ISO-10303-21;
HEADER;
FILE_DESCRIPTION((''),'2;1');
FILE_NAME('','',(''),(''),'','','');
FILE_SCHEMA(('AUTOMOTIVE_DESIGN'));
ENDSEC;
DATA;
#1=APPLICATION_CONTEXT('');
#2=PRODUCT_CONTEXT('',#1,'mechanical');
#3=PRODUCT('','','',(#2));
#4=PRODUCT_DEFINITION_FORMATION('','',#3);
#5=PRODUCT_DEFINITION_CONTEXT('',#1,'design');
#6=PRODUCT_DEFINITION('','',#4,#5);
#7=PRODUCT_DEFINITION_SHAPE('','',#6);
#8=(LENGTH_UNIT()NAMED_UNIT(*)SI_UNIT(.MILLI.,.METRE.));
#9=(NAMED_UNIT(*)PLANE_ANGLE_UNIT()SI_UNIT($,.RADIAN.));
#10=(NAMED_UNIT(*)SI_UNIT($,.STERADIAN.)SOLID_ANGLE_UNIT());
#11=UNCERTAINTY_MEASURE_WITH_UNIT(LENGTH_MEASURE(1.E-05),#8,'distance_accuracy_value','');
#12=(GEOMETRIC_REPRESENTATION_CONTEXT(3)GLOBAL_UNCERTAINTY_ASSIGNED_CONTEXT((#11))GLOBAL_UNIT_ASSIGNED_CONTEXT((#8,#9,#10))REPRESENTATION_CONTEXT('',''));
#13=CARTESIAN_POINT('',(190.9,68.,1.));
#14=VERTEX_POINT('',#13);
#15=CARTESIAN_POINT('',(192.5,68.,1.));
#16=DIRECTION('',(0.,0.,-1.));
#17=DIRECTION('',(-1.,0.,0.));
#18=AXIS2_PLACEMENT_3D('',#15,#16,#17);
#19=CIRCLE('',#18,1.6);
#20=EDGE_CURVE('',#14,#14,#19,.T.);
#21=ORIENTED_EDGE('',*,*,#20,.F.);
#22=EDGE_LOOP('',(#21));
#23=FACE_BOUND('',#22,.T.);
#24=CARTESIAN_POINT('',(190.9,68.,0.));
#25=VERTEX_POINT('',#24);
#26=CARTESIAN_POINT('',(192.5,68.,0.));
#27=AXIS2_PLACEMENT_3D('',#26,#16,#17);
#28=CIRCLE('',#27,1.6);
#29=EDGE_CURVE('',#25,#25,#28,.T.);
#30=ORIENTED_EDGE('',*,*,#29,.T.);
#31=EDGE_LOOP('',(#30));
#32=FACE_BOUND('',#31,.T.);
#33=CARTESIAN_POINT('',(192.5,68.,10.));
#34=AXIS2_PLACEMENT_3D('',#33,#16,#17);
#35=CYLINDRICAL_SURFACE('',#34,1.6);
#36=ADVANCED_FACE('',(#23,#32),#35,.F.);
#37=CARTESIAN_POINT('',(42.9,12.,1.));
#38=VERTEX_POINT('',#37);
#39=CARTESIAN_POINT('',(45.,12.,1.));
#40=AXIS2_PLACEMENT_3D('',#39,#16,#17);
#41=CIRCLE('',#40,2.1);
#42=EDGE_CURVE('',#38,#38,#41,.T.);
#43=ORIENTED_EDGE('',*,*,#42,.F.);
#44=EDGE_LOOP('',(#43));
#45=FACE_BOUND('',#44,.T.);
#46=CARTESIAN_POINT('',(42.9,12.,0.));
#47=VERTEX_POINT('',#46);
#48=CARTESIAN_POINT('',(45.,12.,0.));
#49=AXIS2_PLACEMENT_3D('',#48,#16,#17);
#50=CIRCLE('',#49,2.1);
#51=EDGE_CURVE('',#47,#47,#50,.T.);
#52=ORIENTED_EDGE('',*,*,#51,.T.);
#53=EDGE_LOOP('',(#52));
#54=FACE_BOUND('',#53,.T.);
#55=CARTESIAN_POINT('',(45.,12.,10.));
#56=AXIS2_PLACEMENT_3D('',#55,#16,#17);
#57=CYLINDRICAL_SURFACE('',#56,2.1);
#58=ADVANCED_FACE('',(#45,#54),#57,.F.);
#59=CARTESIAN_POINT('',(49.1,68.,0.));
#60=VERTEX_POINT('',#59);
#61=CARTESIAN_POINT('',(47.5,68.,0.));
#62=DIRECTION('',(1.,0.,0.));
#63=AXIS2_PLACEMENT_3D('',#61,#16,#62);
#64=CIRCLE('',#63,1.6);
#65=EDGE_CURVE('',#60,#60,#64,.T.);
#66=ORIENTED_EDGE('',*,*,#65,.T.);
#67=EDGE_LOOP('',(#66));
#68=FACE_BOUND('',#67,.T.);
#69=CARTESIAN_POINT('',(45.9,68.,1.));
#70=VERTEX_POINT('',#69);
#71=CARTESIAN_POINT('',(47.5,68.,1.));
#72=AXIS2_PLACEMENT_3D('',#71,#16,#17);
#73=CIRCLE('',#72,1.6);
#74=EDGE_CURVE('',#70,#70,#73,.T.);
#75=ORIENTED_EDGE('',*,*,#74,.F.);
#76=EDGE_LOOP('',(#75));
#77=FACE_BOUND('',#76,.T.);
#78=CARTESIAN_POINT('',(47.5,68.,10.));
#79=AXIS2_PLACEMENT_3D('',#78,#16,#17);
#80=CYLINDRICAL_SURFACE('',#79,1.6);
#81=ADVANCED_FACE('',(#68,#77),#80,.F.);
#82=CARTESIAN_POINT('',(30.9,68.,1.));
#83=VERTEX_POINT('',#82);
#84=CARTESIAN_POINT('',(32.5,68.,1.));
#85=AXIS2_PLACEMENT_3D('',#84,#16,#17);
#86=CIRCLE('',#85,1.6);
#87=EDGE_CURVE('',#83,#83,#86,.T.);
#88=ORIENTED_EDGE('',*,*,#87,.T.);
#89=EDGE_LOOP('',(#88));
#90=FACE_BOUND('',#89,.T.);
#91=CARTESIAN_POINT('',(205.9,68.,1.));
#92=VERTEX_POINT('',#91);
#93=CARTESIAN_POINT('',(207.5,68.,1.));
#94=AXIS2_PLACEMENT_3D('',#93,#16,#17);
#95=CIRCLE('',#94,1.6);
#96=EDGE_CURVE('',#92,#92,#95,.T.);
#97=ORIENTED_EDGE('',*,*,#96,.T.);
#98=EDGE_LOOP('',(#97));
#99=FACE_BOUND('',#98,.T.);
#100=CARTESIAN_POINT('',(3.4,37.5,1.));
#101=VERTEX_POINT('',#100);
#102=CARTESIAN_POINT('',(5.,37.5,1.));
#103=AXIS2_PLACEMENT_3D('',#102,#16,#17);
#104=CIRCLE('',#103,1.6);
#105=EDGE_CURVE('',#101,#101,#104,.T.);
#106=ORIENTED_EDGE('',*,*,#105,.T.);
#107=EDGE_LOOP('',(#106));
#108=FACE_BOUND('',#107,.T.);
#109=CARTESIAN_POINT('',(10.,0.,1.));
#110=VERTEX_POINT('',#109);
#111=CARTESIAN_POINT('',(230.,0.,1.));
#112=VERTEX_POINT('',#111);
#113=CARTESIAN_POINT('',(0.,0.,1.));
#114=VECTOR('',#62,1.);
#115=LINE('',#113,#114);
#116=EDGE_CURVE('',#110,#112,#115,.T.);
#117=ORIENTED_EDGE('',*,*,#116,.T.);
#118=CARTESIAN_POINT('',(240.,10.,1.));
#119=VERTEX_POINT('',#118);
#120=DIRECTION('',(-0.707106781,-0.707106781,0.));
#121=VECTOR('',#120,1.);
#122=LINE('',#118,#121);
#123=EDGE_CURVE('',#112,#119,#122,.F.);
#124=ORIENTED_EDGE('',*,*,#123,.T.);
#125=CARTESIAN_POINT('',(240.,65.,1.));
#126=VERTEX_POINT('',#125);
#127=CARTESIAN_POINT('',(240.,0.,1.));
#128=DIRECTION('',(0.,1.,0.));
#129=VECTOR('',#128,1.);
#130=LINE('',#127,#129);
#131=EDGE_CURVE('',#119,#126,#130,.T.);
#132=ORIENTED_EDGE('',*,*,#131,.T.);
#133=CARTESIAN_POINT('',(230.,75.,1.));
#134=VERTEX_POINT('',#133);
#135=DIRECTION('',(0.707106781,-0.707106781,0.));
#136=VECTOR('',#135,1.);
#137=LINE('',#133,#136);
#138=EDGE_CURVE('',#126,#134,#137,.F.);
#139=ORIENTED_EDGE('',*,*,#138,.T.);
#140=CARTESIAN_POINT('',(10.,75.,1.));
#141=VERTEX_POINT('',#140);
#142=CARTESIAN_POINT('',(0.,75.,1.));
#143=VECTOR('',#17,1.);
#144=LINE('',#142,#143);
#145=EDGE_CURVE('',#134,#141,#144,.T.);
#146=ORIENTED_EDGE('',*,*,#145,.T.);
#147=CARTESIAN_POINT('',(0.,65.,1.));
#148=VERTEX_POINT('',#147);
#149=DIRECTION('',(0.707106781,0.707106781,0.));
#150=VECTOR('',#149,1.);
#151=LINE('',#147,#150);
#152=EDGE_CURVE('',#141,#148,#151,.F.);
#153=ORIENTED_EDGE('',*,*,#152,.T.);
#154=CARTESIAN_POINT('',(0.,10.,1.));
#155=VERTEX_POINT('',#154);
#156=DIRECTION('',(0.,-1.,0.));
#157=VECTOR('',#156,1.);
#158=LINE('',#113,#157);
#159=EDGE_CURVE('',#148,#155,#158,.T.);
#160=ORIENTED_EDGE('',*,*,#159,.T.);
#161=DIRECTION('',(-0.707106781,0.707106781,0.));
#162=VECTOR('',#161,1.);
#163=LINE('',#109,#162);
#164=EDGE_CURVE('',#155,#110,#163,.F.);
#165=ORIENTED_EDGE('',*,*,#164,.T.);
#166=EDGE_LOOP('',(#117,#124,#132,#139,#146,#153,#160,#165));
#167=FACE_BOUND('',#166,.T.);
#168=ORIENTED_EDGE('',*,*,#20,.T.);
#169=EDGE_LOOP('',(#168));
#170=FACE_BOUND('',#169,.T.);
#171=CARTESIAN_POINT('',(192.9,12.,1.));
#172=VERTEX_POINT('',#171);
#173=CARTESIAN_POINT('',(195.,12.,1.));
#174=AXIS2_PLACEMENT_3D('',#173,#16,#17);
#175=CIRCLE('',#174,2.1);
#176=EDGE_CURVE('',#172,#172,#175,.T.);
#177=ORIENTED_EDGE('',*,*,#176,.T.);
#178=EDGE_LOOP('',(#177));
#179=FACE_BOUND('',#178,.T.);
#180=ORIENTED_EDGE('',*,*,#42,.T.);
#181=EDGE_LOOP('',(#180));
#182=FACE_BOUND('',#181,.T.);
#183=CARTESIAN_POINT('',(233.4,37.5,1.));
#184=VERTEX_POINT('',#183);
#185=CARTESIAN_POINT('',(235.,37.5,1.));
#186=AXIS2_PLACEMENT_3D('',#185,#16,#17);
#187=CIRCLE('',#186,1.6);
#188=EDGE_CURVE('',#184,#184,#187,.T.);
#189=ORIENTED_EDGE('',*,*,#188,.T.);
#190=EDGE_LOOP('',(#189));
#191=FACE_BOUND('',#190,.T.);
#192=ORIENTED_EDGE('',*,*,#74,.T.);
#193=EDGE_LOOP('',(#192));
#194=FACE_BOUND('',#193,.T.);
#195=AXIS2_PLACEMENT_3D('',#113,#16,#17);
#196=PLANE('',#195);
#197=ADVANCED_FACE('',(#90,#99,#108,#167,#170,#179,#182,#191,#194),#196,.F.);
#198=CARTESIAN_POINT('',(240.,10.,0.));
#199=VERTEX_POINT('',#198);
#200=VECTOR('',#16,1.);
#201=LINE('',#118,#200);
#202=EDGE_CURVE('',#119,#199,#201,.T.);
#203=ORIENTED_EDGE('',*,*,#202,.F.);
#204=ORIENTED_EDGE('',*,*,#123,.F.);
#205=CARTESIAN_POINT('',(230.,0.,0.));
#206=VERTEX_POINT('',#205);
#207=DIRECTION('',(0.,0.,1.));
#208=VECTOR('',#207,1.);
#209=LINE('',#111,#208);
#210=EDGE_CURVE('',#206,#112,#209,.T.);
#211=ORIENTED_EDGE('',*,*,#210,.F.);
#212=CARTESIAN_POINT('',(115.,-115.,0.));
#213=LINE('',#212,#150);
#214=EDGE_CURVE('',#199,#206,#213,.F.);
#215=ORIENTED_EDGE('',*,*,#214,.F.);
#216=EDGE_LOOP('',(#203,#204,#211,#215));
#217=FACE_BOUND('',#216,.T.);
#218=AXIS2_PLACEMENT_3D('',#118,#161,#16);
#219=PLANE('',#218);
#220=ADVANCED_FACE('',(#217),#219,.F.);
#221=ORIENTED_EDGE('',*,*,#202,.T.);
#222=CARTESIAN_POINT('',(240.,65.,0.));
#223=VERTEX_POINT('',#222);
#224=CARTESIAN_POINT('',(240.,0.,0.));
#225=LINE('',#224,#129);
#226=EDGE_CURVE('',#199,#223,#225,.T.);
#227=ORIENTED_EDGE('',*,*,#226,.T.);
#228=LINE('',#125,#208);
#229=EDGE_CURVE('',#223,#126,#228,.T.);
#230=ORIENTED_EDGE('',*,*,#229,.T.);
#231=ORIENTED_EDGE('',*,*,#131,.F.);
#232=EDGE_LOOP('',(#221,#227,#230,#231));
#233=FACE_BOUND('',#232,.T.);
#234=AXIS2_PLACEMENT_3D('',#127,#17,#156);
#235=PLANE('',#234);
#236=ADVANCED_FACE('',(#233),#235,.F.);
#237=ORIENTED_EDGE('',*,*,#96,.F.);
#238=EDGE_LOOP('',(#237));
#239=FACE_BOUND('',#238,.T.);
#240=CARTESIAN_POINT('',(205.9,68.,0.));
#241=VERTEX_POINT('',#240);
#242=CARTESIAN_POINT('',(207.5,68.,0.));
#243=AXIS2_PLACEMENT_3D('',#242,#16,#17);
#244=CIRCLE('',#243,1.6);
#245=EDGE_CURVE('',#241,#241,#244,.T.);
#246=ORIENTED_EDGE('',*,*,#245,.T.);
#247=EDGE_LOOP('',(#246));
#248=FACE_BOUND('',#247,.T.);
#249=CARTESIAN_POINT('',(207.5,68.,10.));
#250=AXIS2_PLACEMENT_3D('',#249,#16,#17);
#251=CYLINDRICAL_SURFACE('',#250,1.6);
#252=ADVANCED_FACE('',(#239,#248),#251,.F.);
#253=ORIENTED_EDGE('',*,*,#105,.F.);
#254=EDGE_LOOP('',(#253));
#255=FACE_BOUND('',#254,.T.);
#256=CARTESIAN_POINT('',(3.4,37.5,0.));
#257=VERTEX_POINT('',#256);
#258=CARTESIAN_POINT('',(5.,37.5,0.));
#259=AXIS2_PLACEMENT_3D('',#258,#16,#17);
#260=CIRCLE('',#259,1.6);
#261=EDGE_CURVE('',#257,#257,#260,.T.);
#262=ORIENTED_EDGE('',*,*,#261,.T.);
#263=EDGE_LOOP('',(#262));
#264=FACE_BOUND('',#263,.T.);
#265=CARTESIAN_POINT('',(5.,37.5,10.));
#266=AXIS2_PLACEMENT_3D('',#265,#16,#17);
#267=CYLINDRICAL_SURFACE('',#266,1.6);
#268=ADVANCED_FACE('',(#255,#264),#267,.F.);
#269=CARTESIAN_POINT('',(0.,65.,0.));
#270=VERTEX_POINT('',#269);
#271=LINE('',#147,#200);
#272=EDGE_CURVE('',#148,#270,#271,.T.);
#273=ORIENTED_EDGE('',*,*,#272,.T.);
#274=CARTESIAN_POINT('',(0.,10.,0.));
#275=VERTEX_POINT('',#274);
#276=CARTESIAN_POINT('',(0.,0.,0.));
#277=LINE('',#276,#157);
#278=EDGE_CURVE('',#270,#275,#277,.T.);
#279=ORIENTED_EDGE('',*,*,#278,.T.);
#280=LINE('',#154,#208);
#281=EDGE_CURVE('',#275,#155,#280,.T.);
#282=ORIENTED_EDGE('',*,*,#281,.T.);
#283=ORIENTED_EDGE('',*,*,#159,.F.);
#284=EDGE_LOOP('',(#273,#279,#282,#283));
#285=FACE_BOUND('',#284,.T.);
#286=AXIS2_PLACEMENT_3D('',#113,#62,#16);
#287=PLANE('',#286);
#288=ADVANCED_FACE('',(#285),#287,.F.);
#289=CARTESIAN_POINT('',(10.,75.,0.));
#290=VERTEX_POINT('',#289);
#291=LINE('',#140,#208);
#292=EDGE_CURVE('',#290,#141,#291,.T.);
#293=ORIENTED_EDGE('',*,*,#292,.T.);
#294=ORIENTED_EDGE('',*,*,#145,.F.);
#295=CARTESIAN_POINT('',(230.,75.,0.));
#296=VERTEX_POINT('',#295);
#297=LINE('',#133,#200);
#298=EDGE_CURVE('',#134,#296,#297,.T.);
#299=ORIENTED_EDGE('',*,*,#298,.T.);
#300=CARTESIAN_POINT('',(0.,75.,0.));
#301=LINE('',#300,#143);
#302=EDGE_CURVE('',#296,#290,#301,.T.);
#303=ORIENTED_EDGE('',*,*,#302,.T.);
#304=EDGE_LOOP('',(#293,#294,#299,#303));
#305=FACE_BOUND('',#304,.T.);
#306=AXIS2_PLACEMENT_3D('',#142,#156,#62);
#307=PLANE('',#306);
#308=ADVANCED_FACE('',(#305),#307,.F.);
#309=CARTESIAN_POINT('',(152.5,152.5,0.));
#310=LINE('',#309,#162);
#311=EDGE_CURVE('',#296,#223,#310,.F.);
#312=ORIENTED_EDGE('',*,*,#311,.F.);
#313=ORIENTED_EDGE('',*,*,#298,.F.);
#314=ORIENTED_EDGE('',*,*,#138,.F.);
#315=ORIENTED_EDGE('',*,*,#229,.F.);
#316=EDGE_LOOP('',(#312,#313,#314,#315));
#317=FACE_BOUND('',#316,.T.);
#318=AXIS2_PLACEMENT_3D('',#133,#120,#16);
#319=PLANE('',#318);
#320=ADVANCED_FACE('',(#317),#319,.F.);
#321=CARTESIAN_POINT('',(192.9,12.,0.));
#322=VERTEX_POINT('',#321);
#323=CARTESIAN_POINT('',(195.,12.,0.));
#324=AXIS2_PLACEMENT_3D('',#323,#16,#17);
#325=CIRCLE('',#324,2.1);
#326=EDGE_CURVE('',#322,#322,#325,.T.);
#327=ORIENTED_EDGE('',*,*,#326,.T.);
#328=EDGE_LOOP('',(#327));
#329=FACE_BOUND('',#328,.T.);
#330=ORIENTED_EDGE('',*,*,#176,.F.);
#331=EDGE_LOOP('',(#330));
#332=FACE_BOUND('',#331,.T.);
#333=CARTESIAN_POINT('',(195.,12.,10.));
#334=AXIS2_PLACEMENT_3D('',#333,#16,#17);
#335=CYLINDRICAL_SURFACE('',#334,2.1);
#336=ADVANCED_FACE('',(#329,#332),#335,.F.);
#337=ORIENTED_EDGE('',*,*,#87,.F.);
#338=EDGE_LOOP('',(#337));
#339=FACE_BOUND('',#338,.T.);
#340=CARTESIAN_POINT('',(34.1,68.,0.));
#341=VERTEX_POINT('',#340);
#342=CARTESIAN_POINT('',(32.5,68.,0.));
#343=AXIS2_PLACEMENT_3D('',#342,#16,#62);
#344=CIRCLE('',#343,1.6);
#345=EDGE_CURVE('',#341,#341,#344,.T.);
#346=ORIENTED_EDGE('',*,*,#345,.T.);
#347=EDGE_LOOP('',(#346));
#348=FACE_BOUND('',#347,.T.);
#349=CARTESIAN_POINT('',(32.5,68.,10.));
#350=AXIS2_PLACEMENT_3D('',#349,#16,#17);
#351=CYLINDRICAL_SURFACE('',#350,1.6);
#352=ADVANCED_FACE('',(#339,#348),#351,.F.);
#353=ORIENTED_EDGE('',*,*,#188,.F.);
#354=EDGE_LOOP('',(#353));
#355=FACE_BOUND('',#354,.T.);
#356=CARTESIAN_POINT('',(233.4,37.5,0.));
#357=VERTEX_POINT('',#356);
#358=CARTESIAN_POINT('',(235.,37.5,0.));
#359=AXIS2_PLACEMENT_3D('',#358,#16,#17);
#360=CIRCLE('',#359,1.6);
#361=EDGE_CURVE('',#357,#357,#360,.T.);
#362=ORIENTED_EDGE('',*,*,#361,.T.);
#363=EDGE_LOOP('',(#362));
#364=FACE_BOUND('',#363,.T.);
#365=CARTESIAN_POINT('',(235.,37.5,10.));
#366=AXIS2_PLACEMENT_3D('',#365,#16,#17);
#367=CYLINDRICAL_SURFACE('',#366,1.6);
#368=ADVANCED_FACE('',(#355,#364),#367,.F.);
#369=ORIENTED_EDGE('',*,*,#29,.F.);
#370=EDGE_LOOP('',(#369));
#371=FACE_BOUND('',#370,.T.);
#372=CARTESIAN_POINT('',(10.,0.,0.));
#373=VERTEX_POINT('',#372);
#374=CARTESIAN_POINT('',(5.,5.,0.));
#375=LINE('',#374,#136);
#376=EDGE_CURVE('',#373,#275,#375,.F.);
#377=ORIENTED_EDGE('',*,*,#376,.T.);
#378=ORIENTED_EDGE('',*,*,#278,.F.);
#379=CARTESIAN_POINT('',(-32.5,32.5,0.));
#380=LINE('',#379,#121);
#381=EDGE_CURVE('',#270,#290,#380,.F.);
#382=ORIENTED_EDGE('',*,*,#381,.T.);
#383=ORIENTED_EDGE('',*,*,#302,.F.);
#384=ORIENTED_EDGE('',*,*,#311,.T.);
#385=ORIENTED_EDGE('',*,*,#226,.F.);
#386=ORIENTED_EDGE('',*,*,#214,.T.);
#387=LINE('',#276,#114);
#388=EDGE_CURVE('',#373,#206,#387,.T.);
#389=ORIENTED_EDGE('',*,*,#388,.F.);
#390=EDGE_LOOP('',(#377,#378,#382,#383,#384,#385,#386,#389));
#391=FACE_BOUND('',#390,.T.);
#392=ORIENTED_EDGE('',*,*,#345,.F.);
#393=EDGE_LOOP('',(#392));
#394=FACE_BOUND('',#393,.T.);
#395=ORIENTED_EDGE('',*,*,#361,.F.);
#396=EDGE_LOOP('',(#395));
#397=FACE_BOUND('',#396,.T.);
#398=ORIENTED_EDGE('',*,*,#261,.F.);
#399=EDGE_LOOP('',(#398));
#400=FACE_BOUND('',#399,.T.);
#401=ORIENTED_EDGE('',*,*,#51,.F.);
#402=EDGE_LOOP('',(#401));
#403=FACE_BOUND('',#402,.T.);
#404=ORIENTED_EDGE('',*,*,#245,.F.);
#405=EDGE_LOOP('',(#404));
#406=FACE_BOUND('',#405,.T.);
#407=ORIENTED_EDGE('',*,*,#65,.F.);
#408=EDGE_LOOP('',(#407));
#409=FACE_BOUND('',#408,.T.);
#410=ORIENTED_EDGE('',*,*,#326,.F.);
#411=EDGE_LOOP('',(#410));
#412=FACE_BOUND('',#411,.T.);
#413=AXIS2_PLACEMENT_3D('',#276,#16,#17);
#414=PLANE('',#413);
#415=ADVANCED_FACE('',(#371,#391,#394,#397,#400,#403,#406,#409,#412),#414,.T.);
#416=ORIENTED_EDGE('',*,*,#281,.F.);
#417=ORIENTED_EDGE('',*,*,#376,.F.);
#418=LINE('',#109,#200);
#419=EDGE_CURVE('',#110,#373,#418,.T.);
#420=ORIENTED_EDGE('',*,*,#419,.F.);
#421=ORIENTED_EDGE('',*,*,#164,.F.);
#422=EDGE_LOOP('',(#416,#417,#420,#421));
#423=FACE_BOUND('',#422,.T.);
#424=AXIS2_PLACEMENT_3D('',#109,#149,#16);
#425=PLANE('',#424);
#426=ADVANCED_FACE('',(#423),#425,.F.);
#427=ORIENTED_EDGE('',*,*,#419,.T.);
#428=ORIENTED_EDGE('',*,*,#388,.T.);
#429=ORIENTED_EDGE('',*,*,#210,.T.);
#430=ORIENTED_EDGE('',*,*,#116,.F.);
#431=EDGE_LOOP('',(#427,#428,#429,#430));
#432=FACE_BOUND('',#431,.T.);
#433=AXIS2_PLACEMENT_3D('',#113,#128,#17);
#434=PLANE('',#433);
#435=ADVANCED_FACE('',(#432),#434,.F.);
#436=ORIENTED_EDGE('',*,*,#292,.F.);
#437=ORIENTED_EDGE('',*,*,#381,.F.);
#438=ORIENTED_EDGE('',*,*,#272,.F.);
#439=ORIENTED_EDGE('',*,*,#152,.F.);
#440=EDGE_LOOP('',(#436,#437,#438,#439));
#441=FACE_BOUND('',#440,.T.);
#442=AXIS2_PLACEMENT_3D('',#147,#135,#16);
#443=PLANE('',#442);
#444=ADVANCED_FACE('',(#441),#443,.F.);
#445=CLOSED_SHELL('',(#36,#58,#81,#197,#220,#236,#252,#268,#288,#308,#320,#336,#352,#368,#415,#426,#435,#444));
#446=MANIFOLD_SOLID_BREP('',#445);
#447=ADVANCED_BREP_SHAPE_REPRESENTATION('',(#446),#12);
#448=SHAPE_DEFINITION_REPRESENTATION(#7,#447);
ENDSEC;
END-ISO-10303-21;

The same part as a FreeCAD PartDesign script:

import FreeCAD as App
import Part
import Sketcher

V = App.Vector
Q = App.Units.Quantity


def edges_at(feature, points):
    """Names of the edges that pass closest to the given points."""
    edges = feature.Shape.Edges
    near = lambda p: min(range(len(edges)), key=lambda i: edges[i].distToShape(Part.Vertex(*p))[0])
    return sorted({f"Edge{near(p) + 1}" for p in points})


def add_polygon(sketch, points):
    """Adds a closed chain of lines whose ends are joined by coincident constraints."""
    first, n = sketch.GeometryCount, len(points)
    for a, b in zip(points, points[1:] + points[:1]):
        sketch.addGeometry(Part.LineSegment(App.Vector(*a, 0), App.Vector(*b, 0)), False)
    for i in range(n):
        sketch.addConstraint(Sketcher.Constraint("Coincident", first + i, 2, first + (i + 1) % n, 1))

doc = App.newDocument("Part")
body = doc.addObject("PartDesign::Body", "Body")

sketch1 = body.newObject("Sketcher::SketchObject", "Sketch")
sketch1.AttachmentSupport = (doc.getObject("XY_Plane"), [""])
sketch1.MapMode = "FlatFace"
add_polygon(sketch1, [(0, 75), (0, 0), (240, 0), (240, 75)])
sketch1.addConstraint(Sketcher.Constraint("Vertical", 0))
sketch1.addConstraint(Sketcher.Constraint("Horizontal", 1))
sketch1.addConstraint(Sketcher.Constraint("Vertical", 2))
sketch1.addConstraint(Sketcher.Constraint("Horizontal", 3))
sketch1.addConstraint(Sketcher.Constraint("Coincident", 0, 2, -1, 1))
sketch1.addConstraint(Sketcher.Constraint("DistanceX", 1, 1, 1, 2, Q("240 mm")))
sketch1.addConstraint(Sketcher.Constraint("DistanceY", 0, 2, 0, 1, Q("75 mm")))
pad1 = body.newObject("PartDesign::Pad", "Pad")
pad1.Profile = sketch1
pad1.Length = 1
doc.recompute()

chamfer = body.newObject("PartDesign::Chamfer", "Chamfer")
chamfer.Base = (pad1, edges_at(pad1, [
    (0, 75, 0.5),
    (240, 75, 0.5),
    (240, 0, 0.5),
    (0, 0, 0.5),
]))
chamfer.Size = 10

sketch2 = body.newObject("Sketcher::SketchObject", "Sketch001")
sketch2.AttachmentSupport = (doc.getObject("XY_Plane"), [""])
sketch2.MapMode = "FlatFace"
sketch2.addGeometry(Part.Circle(V(195, 12, 0), V(0, 0, 1), 2.1), False)
sketch2.addGeometry(Part.Circle(V(45, 12, 0), V(0, 0, 1), 2.1), False)
sketch2.addGeometry(Part.Circle(V(207.5, 68, 0), V(0, 0, 1), 1.6), False)
sketch2.addGeometry(Part.Circle(V(192.5, 68, 0), V(0, 0, 1), 1.6), False)
sketch2.addGeometry(Part.Circle(V(47.5, 68, 0), V(0, 0, 1), 1.6), False)
sketch2.addGeometry(Part.Circle(V(32.5, 68, 0), V(0, 0, 1), 1.6), False)
sketch2.addGeometry(Part.Circle(V(235, 37.5, 0), V(0, 0, 1), 1.6), False)
sketch2.addGeometry(Part.Circle(V(5, 37.5, 0), V(0, 0, 1), 1.6), False)
sketch2.addConstraint(Sketcher.Constraint("Equal", 0, 1))
sketch2.addConstraint(Sketcher.Constraint("Equal", 2, 3))
sketch2.addConstraint(Sketcher.Constraint("Equal", 3, 4))
sketch2.addConstraint(Sketcher.Constraint("Equal", 4, 5))
sketch2.addConstraint(Sketcher.Constraint("Equal", 5, 6))
sketch2.addConstraint(Sketcher.Constraint("Equal", 6, 7))
sketch2.addConstraint(Sketcher.Constraint("Horizontal", 0, 3, 1, 3))
sketch2.addConstraint(Sketcher.Constraint("Horizontal", 2, 3, 3, 3))
sketch2.addConstraint(Sketcher.Constraint("Horizontal", 3, 3, 4, 3))
sketch2.addConstraint(Sketcher.Constraint("Horizontal", 4, 3, 5, 3))
sketch2.addConstraint(Sketcher.Constraint("Horizontal", 6, 3, 7, 3))
sketch2.addConstraint(Sketcher.Constraint("Diameter", 0, Q("4.2 mm")))
sketch2.addConstraint(Sketcher.Constraint("Diameter", 2, Q("3.2 mm")))
sketch2.addConstraint(Sketcher.Constraint("DistanceX", -1, 1, 0, 3, Q("195 mm")))
sketch2.addConstraint(Sketcher.Constraint("DistanceY", -1, 1, 0, 3, Q("12 mm")))
sketch2.addConstraint(Sketcher.Constraint("DistanceX", -1, 1, 1, 3, Q("45 mm")))
sketch2.addConstraint(Sketcher.Constraint("DistanceY", -1, 1, 2, 3, Q("68 mm")))
sketch2.addConstraint(Sketcher.Constraint("DistanceX", -1, 1, 6, 3, Q("235 mm")))
sketch2.addConstraint(Sketcher.Constraint("DistanceX", -1, 1, 7, 3, Q("5 mm")))
sketch2.addConstraint(Sketcher.Constraint("DistanceX", 3, 3, 2, 3, Q("15 mm")))
sketch2.addConstraint(Sketcher.Constraint("DistanceX", 4, 3, 3, 3, Q("145 mm")))
sketch2.addConstraint(Sketcher.Constraint("DistanceX", 5, 3, 4, 3, Q("15 mm")))
sketch2.addConstraint(Sketcher.Constraint("DistanceX", -1, 1, 2, 3, Q("207.5 mm")))
sketch2.addConstraint(Sketcher.Constraint("DistanceY", -1, 1, 6, 3, Q("37.5 mm")))
pocket1 = body.newObject("PartDesign::Pocket", "Pocket")
pocket1.Profile = sketch2
pocket1.Length = 10
pocket1.Reversed = True

doc.recompute()
